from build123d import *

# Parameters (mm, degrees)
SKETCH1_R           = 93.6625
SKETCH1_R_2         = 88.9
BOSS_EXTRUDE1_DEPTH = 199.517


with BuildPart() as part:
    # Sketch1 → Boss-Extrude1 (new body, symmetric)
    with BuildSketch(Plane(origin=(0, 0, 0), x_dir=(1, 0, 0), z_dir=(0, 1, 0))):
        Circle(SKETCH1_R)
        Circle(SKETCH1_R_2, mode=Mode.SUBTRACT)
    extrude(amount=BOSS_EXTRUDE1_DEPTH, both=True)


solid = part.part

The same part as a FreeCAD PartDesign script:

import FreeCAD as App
import Part
import Sketcher

V = App.Vector
Q = App.Units.Quantity

doc = App.newDocument("Part")
body = doc.addObject("PartDesign::Body", "Body")

sketch1 = doc.addObject("Sketcher::SketchObject", "Sketch")
body.addObject(sketch1)
sketch1.AttachmentSupport = (doc.XZ_Plane, [""])
sketch1.MapMode = "FlatFace"
sketch1.addGeometry([
    Part.Circle(V(0, 0, 0), V(0, 0, 1), 93.6625),
    Part.Circle(V(0, 0, 0), V(0, 0, 1), 88.9),
], False)
sketch1.addConstraint([
    Sketcher.Constraint("Coincident", 0, 3, -1, 1),
    Sketcher.Constraint("Coincident", 1, 3, -1, 1),
    Sketcher.Constraint("Diameter", 1, Q("7 in")),
    Sketcher.Constraint("Diameter", 0, Q("7.375 in")),
])
pad1 = doc.addObject("PartDesign::Pad", "Pad")
body.addObject(pad1)
pad1.Profile = sketch1
pad1.Length = Q("15.71 in")
pad1.Midplane = True

doc.recompute()
